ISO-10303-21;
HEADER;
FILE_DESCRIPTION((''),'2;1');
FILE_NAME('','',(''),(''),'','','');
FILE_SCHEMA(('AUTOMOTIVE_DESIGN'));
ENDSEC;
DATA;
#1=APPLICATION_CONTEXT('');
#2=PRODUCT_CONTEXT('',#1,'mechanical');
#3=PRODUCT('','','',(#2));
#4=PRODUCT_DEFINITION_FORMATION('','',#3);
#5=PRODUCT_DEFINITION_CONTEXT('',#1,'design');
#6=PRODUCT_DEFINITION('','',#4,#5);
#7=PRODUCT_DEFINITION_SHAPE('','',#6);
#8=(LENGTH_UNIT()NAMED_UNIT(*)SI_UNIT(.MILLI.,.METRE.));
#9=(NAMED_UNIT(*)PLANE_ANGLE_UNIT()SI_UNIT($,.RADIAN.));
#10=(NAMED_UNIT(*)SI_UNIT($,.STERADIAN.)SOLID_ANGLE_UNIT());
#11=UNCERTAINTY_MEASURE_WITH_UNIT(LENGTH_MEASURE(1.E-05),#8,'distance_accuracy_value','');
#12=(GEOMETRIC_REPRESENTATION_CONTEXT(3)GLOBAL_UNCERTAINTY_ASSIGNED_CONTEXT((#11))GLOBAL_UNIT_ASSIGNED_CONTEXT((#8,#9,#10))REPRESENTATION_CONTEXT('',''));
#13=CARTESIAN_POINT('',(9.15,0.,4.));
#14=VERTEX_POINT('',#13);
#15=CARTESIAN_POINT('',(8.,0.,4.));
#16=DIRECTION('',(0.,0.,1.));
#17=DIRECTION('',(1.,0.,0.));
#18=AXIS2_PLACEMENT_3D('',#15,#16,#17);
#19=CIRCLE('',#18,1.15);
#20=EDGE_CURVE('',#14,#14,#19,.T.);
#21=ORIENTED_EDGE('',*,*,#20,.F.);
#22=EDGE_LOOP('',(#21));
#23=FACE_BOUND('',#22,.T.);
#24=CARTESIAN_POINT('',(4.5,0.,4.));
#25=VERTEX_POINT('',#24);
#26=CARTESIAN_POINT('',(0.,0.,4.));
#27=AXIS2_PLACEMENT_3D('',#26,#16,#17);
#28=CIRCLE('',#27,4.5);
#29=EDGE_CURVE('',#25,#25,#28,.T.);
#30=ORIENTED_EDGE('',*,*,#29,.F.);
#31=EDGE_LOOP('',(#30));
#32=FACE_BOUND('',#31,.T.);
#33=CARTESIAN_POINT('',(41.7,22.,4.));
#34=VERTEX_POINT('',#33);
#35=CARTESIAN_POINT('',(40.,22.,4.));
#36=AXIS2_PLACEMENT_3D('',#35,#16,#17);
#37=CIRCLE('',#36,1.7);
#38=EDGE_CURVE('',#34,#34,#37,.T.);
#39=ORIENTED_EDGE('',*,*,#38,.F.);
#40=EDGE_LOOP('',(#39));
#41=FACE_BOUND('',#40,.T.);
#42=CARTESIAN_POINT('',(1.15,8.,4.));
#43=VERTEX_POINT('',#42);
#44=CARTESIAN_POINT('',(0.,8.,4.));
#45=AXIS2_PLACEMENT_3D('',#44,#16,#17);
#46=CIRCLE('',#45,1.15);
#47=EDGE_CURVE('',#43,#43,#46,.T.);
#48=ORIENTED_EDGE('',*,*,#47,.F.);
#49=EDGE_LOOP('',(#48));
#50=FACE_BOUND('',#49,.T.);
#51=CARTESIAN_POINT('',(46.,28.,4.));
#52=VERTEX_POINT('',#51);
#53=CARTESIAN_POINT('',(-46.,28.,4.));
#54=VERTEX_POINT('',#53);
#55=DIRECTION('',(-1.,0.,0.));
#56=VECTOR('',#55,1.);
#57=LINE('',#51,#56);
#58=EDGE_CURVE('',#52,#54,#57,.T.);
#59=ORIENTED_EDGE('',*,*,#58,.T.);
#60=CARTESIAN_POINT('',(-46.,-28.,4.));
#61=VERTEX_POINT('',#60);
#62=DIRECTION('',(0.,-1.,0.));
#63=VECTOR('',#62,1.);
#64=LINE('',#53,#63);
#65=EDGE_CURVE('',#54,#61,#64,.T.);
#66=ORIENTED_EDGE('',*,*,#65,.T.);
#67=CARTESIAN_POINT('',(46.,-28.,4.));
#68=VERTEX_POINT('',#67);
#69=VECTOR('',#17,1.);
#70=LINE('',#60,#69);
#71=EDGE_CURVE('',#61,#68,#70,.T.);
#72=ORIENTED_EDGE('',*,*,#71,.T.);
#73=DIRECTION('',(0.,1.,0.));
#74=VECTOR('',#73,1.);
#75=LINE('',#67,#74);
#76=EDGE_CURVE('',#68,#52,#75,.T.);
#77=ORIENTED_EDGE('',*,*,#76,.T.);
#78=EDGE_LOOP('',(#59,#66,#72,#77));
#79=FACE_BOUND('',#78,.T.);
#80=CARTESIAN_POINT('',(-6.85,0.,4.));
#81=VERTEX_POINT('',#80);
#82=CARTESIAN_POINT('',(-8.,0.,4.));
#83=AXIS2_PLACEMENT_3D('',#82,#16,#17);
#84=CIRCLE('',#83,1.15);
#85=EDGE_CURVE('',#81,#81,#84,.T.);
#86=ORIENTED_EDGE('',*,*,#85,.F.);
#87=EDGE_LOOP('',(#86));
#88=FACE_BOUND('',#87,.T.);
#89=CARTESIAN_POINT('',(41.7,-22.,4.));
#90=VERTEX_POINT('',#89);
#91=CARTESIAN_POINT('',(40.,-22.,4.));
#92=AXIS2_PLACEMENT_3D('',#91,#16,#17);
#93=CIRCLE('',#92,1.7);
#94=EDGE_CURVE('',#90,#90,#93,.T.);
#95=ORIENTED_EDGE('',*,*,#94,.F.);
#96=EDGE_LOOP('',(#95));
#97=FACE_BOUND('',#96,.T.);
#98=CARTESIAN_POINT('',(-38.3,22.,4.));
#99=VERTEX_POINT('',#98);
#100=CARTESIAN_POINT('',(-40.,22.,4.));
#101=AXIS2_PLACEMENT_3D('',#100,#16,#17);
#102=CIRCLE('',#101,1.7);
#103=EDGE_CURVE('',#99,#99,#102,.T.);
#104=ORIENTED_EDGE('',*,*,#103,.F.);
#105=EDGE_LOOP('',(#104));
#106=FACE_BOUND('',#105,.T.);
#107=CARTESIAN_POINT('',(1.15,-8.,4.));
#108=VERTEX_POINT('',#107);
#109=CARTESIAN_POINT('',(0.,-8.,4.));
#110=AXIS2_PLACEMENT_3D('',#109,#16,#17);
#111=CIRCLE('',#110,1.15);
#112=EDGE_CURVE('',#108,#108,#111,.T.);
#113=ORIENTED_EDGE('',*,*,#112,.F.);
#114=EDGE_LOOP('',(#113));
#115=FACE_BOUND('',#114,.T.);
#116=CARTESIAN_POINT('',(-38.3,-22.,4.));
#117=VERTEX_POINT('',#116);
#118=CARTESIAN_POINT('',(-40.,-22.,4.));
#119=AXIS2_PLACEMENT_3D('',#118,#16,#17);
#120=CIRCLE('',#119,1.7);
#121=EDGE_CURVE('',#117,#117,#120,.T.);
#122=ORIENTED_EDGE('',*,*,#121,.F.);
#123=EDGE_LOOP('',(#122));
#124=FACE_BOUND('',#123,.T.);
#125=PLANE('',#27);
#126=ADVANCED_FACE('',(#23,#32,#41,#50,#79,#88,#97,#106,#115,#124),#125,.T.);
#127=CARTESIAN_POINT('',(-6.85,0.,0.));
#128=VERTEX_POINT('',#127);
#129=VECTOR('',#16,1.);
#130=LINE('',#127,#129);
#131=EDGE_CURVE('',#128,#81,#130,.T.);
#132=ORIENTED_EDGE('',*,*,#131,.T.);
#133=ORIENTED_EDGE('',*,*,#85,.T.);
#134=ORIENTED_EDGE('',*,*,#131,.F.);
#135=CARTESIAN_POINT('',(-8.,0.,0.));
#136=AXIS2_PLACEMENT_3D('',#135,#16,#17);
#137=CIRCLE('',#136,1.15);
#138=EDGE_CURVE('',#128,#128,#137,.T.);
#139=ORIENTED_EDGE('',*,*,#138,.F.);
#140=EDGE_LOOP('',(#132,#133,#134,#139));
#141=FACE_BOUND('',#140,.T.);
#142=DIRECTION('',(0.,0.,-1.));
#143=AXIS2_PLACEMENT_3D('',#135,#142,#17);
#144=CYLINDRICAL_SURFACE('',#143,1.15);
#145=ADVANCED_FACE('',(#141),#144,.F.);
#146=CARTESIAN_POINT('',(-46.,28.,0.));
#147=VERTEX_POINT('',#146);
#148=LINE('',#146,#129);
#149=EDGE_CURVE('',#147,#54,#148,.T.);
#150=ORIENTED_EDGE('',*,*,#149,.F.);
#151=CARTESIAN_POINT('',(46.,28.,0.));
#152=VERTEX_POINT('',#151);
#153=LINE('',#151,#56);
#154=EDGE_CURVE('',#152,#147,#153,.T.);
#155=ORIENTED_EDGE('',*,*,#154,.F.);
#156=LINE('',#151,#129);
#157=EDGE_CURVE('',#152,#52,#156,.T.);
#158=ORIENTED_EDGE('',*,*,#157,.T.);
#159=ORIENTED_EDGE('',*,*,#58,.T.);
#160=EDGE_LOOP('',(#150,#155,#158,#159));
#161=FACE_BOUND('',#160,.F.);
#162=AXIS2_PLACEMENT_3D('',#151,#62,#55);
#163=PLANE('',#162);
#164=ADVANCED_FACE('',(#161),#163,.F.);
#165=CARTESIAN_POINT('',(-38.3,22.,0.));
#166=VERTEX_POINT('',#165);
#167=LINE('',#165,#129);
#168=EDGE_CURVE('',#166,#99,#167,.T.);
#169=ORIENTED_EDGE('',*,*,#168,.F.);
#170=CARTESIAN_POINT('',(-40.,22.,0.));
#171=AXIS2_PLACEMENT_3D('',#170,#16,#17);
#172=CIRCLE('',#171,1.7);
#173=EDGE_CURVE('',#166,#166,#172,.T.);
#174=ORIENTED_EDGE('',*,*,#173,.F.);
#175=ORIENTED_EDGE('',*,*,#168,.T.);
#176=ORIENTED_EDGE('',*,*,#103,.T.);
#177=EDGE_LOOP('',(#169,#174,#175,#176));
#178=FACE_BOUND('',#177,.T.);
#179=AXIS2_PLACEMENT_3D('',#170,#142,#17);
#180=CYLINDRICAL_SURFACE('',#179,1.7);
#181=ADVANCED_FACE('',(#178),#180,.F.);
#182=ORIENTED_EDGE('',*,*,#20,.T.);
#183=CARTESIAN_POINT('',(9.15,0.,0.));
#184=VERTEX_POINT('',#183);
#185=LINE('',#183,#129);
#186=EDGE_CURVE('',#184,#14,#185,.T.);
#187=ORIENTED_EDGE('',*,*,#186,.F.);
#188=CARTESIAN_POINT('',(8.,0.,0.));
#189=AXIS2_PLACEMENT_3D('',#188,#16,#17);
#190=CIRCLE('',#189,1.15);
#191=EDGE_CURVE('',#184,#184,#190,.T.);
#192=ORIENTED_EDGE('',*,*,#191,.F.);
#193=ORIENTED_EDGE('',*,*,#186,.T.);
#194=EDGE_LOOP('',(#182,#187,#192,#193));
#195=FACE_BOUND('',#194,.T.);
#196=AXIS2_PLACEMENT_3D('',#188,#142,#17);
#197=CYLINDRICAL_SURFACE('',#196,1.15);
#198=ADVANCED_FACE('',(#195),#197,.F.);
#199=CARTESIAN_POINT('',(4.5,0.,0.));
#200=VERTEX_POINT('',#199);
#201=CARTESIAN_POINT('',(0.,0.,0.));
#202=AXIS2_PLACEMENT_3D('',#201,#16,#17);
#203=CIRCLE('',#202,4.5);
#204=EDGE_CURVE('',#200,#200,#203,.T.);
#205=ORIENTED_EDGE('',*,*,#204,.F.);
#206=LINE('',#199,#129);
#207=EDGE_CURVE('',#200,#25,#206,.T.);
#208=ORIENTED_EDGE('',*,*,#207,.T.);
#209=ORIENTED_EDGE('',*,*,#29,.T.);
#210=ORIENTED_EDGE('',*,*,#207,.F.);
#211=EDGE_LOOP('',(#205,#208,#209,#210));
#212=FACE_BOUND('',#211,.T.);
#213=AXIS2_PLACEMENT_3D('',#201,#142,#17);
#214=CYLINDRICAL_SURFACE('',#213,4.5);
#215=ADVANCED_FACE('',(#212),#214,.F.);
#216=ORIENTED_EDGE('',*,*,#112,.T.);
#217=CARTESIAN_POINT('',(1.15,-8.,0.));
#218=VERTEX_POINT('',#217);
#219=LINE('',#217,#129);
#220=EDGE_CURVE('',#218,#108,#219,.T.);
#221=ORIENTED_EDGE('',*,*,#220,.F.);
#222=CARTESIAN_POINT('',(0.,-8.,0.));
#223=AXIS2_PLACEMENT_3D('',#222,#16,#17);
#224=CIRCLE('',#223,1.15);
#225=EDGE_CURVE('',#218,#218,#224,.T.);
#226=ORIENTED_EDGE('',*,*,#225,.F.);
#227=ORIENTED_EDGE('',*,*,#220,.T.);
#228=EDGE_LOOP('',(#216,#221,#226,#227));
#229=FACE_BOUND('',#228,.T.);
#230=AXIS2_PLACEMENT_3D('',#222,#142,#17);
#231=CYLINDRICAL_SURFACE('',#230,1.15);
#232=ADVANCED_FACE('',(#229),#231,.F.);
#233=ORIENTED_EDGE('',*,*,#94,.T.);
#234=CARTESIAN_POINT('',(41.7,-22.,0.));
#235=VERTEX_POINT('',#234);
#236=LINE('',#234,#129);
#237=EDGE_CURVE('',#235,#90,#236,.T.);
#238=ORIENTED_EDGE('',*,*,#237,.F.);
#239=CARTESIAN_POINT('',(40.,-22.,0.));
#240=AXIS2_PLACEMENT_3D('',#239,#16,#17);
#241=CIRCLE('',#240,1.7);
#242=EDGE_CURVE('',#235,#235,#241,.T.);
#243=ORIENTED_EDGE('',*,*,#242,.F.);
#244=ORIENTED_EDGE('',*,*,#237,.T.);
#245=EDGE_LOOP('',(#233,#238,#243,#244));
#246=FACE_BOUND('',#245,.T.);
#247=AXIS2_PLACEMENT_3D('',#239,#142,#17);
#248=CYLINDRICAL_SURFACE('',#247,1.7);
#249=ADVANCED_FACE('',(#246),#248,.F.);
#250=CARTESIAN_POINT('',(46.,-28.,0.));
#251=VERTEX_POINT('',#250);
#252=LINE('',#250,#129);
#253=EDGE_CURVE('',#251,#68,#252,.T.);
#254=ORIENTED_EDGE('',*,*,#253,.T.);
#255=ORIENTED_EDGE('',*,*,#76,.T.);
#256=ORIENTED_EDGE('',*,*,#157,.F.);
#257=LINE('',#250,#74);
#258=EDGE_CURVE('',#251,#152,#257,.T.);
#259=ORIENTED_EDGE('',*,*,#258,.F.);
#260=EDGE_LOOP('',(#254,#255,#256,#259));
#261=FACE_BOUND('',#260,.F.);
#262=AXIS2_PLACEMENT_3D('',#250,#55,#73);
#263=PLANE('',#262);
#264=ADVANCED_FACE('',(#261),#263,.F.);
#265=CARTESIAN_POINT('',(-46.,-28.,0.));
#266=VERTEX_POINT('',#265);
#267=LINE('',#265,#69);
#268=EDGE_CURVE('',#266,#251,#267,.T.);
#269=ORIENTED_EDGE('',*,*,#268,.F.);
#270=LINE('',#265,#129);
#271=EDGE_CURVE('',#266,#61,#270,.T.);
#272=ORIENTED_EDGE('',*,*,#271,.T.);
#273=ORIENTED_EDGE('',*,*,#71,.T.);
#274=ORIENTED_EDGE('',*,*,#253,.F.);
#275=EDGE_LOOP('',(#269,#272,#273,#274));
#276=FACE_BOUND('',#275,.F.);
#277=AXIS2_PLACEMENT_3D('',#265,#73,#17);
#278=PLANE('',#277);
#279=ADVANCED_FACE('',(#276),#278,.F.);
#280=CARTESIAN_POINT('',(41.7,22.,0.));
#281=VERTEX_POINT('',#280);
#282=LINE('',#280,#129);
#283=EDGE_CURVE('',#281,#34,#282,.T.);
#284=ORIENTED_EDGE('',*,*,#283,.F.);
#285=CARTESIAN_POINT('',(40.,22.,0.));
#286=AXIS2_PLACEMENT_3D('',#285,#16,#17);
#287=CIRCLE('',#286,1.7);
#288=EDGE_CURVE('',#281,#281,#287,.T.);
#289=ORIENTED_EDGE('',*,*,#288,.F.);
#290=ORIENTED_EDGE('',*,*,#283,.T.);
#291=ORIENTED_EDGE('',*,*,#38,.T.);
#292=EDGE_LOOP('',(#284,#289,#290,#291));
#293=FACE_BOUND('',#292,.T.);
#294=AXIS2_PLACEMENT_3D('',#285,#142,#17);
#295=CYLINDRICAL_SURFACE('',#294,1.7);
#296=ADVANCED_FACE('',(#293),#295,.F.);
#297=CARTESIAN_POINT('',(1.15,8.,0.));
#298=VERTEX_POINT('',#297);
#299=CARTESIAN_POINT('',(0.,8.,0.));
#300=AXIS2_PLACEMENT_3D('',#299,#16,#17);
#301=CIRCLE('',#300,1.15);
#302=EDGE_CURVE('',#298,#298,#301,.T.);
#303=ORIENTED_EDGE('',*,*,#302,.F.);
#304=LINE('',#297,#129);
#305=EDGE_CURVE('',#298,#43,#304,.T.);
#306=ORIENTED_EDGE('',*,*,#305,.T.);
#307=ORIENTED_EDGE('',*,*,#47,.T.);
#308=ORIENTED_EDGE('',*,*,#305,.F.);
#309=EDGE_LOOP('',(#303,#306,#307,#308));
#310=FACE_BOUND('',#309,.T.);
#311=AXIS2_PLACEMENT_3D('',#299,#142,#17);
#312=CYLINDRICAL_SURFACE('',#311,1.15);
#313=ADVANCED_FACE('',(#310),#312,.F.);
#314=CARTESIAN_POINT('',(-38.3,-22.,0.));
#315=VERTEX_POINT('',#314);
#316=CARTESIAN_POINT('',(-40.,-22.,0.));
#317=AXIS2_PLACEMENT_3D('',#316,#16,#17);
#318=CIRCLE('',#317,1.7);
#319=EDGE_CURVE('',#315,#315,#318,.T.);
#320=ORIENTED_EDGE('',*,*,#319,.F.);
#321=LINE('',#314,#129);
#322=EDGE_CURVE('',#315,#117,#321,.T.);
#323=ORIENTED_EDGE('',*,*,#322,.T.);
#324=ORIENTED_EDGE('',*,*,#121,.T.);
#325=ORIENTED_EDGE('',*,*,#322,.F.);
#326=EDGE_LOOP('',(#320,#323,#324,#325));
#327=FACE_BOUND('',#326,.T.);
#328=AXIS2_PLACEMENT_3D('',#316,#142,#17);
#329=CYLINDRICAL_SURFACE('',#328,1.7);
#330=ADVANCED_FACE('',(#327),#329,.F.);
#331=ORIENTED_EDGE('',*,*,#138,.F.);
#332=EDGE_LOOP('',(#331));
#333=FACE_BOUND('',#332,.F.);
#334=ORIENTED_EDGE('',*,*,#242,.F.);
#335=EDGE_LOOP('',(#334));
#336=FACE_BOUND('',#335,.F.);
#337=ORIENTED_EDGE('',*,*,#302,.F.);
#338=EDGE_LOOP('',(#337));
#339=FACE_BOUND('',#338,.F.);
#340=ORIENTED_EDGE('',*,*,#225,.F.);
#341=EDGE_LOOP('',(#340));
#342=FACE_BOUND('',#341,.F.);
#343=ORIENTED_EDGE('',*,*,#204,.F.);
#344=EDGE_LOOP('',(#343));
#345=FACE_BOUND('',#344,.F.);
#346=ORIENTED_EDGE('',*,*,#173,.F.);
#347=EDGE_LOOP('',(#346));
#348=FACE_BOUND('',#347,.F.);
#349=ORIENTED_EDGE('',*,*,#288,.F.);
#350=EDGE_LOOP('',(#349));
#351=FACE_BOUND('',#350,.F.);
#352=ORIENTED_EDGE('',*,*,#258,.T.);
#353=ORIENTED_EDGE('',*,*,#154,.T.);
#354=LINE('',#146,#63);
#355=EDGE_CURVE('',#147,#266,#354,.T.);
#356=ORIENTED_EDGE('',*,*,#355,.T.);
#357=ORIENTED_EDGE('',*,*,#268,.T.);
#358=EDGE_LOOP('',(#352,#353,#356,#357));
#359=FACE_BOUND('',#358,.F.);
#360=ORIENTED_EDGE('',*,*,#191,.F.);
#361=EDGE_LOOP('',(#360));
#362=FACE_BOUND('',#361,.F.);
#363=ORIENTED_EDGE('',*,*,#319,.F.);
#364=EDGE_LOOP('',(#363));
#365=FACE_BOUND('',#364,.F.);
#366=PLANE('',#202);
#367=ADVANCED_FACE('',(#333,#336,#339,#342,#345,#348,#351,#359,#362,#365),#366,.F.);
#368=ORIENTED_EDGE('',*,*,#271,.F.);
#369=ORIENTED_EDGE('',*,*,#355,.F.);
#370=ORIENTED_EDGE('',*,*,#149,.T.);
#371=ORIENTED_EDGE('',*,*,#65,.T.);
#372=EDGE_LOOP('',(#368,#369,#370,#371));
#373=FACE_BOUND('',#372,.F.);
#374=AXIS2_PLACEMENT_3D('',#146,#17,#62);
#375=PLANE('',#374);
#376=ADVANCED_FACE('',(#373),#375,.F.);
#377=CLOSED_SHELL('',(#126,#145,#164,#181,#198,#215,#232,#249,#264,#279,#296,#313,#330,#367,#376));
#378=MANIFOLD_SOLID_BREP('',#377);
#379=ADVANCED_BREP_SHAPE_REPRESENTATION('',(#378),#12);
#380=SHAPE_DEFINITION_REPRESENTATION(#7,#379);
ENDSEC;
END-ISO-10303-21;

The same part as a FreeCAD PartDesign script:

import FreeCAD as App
import Part
import Sketcher
from FreeCAD import Vector
Q = App.Units.Quantity


def add_polygon(sketch, points):
    """Adds a closed chain of lines whose ends are joined by coincident constraints."""
    first, n = sketch.GeometryCount, len(points)
    for a, b in zip(points, points[1:] + points[:1]):
        sketch.addGeometry(Part.LineSegment(App.Vector(*a, 0), App.Vector(*b, 0)), False)
    for i in range(n):
        sketch.addConstraint(Sketcher.Constraint("Coincident", first + i, 2, first + (i + 1) % n, 1))

doc = App.newDocument("Part")
params = doc.addObject("Spreadsheet::Sheet", "Params")
for row, (alias, value) in enumerate([
    ("sketch1_diameter", "9 mm"),
    ("sketch1_diameter2", "3.4 mm"),
    ("sketch1_diameter3", "2.3 mm"),
    ("sketch1_width", "92 mm"),
    ("sketch1_height", "56 mm"),
    ("pad1_length", "4 mm"),
], start=1):
    params.set(f"A{row}", alias)
    params.set(f"B{row}", "=" + value)
    params.setAlias(f"B{row}", alias)

body = doc.addObject("PartDesign::Body", "Body")

# Sketch on XY plane
sketch1 = body.newObject("Sketcher::SketchObject", "Sketch")
sketch1.AttachmentSupport = (doc.getObject("XY_Plane"), [""])
sketch1.MapMode = "FlatFace"
add_polygon(sketch1, [(-46, 28), (-46, -28), (46, -28), (46, 28)])  # lines 0-3
sketch1.addGeometry(Part.Circle(Vector(-40, -22, 0), Vector(0, 0, 1), 1.7), False)  # 4
sketch1.addGeometry(Part.Circle(Vector(40, -22, 0), Vector(0, 0, 1), 1.7), False)  # 5
sketch1.addGeometry(Part.Circle(Vector(0, -8, 0), Vector(0, 0, 1), 1.15), False)  # 6
sketch1.addGeometry(Part.Circle(Vector(-8, 0, 0), Vector(0, 0, 1), 1.15), False)  # 7
sketch1.addGeometry(Part.Circle(Vector(-40, 22, 0), Vector(0, 0, 1), 1.7), False)  # 8
sketch1.addGeometry(Part.Circle(Vector(0, 0, 0), Vector(0, 0, 1), 4.5), False)  # 9
sketch1.addGeometry(Part.Circle(Vector(8, 0, 0), Vector(0, 0, 1), 1.15), False)  # 10
sketch1.addGeometry(Part.Circle(Vector(0, 8, 0), Vector(0, 0, 1), 1.15), False)  # 11
sketch1.addGeometry(Part.Circle(Vector(40, 22, 0), Vector(0, 0, 1), 1.7), False)  # 12
sketch1.addConstraint(Sketcher.Constraint("Vertical", 0))
sketch1.addConstraint(Sketcher.Constraint("Horizontal", 1))
sketch1.addConstraint(Sketcher.Constraint("Vertical", 2))
sketch1.addConstraint(Sketcher.Constraint("Horizontal", 3))
sketch1.addConstraint(Sketcher.Constraint("Coincident", 9, 3, -1, 1))
sketch1.addConstraint(Sketcher.Constraint("Equal", 4, 5))
sketch1.addConstraint(Sketcher.Constraint("Equal", 6, 7))
sketch1.addConstraint(Sketcher.Constraint("Equal", 5, 8))
sketch1.addConstraint(Sketcher.Constraint("Equal", 7, 10))
sketch1.addConstraint(Sketcher.Constraint("Equal", 10, 11))
sketch1.addConstraint(Sketcher.Constraint("Equal", 8, 12))
sketch1.addConstraint(Sketcher.Constraint("Symmetric", 5, 3, 8, 3, -1, 1))
sketch1.addConstraint(Sketcher.Constraint("Symmetric", 7, 3, 10, 3, -1, 1))
sketch1.addConstraint(Sketcher.Constraint("Symmetric", 6, 3, 11, 3, -1, 1))
sketch1.addConstraint(Sketcher.Constraint("Symmetric", 4, 3, 12, 3, -1, 1))
sketch1.addConstraint(Sketcher.Constraint("Symmetric", 0, 2, 2, 2, -1, 1))
sketch1.addConstraint(Sketcher.Constraint("Symmetric", 4, 3, 5, 3, -2))
sketch1.addConstraint(Sketcher.Constraint("PointOnObject", 6, 3, -2))
sketch1.addConstraint(Sketcher.Constraint("PointOnObject", 7, 3, -1))
sketch1.addConstraint(Sketcher.Constraint("Diameter", 9, Q("9 mm")))
sketch1.addConstraint(Sketcher.Constraint("Diameter", 4, Q("3.4 mm")))
sketch1.addConstraint(Sketcher.Constraint("Diameter", 6, Q("2.3 mm")))
sketch1.addConstraint(Sketcher.Constraint("DistanceX", 1, 1, 1, 2, Q("92 mm")))
sketch1.addConstraint(Sketcher.Constraint("DistanceY", 0, 2, 0, 1, Q("56 mm")))
sketch1.addConstraint(Sketcher.Constraint("DistanceX", 4, 3, -1, 1, Q("40 mm")))
sketch1.addConstraint(Sketcher.Constraint("DistanceY", 4, 3, -1, 1, Q("22 mm")))
sketch1.addConstraint(Sketcher.Constraint("DistanceY", 6, 3, -1, 1, Q("8 mm")))
sketch1.addConstraint(Sketcher.Constraint("DistanceX", 7, 3, -1, 1, Q("8 mm")))
sketch1.setExpression("Constraints[23]", "Params.sketch1_diameter")
sketch1.setExpression("Constraints[24]", "Params.sketch1_diameter2")
sketch1.setExpression("Constraints[25]", "Params.sketch1_diameter3")
sketch1.setExpression("Constraints[26]", "Params.sketch1_width")
sketch1.setExpression("Constraints[27]", "Params.sketch1_height")
pad1 = body.newObject("PartDesign::Pad", "Pad")
pad1.Profile = sketch1
pad1.setExpression("Length", "Params.pad1_length")

doc.recompute()
